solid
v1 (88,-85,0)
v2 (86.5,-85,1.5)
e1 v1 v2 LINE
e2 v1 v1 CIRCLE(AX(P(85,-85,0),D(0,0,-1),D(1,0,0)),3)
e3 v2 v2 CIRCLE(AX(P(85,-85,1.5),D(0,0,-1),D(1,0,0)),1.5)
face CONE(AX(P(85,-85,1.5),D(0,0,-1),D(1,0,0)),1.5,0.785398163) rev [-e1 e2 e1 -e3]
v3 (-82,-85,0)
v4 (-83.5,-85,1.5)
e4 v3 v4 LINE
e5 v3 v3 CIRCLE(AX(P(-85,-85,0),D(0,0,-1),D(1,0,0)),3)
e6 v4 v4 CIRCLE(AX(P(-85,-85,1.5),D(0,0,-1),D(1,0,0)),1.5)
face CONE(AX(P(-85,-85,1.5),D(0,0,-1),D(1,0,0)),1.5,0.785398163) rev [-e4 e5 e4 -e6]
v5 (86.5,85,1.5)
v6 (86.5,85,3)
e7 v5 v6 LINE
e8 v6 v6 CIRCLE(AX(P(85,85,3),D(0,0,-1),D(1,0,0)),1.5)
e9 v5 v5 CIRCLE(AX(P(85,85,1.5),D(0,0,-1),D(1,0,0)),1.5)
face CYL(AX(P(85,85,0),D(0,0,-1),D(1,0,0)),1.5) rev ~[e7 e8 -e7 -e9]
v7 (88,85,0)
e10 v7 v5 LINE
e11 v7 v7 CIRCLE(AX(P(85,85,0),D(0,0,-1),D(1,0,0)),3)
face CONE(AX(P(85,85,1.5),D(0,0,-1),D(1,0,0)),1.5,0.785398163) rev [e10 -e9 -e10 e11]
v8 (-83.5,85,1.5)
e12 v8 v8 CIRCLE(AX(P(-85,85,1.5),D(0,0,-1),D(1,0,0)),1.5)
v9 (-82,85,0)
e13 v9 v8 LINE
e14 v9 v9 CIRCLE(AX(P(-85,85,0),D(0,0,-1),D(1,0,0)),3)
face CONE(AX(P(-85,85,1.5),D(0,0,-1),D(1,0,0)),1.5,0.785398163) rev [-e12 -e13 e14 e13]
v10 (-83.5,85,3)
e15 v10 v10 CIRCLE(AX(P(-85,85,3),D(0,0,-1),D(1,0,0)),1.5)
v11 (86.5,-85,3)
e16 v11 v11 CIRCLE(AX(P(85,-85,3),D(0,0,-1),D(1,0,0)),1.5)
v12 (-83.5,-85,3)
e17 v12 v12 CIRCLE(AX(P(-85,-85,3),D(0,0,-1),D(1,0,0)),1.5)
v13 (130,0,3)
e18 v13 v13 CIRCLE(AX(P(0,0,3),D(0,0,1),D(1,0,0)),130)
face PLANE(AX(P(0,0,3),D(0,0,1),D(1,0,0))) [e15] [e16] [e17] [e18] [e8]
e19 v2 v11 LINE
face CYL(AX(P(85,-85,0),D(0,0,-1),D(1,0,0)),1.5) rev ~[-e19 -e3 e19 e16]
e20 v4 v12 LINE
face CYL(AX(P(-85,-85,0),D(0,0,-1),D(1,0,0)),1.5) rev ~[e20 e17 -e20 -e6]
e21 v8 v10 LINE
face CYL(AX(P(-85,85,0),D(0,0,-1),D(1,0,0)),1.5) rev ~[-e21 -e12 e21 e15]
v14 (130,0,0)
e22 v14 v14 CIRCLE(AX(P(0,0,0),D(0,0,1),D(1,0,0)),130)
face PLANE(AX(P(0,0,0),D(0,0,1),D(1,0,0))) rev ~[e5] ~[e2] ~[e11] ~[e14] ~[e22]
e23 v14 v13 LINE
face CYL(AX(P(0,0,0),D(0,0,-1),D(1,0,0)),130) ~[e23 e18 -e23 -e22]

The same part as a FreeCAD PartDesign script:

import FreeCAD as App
import Part
import Sketcher
Q = App.Units.Quantity


def edges_at(feature, points):
    """Names of the edges that pass closest to the given points."""
    edges = feature.Shape.Edges
    near = lambda p: min(range(len(edges)), key=lambda i: edges[i].distToShape(Part.Vertex(*p))[0])
    return sorted({f"Edge{near(p) + 1}" for p in points})

doc = App.newDocument("Part")
params = doc.addObject("Spreadsheet::Sheet", "Params")
for row, (alias, value) in enumerate([
    ("sketch1_diameter", "260 mm"),
    ("pad1_length", "3 mm"),
    ("sketch2_diameter", "3 mm"),
    ("pocket1_length", "3 mm"),
    ("chamfer_size", "1.5 mm"),
], start=1):
    params.set(f"A{row}", alias)
    params.set(f"B{row}", "=" + value)
    params.setAlias(f"B{row}", alias)

body = doc.addObject("PartDesign::Body", "Body")

# Sketch on XY plane
sketch1 = body.newObject("Sketcher::SketchObject", "Sketch")
sketch1.AttachmentSupport = (doc.getObject("XY_Plane"), [""])
sketch1.MapMode = "FlatFace"
sketch1.addGeometry(Part.Circle(App.Vector(0, 0, 0), App.Vector(0, 0, 1), 130), False)
sketch1.addConstraint([
    Sketcher.Constraint("Coincident", 0, 3, -1, 1),
    Sketcher.Constraint("Diameter", 0, Q("260 mm")),
])
sketch1.setExpression("Constraints[1]", "Params.sketch1_diameter")
pad1 = body.newObject("PartDesign::Pad", "Pad")
pad1.Profile = sketch1
pad1.setExpression("Length", "Params.pad1_length")

# Sketch on XY plane
sketch2 = body.newObject("Sketcher::SketchObject", "Sketch001")
sketch2.AttachmentSupport = (doc.getObject("XY_Plane"), [""])
sketch2.MapMode = "FlatFace"
sketch2.addGeometry([
    Part.Circle(App.Vector(-85, -85, 0), App.Vector(0, 0, 1), 1.5),
    Part.Circle(App.Vector(-85, 85, 0), App.Vector(0, 0, 1), 1.5),
    Part.Circle(App.Vector(85, 85, 0), App.Vector(0, 0, 1), 1.5),
    Part.Circle(App.Vector(85, -85, 0), App.Vector(0, 0, 1), 1.5),
], False)
sketch2.addConstraint([
    Sketcher.Constraint("Equal", 0, 1),
    Sketcher.Constraint("Equal", 1, 2),
    Sketcher.Constraint("Equal", 2, 3),
    Sketcher.Constraint("Symmetric", 0, 3, 2, 3, -1, 1),
    Sketcher.Constraint("Symmetric", 1, 3, 3, 3, -1, 1),
    Sketcher.Constraint("Symmetric", 1, 3, 2, 3, -2),
    Sketcher.Constraint("Diameter", 0, Q("3 mm")),
    Sketcher.Constraint("DistanceX", 0, 3, -1, 1, Q("85 mm")),
    Sketcher.Constraint("DistanceY", 0, 3, -1, 1, Q("85 mm")),
])
sketch2.setExpression("Constraints[6]", "Params.sketch2_diameter")
pocket1 = body.newObject("PartDesign::Pocket", "Pocket")
pocket1.Profile = sketch2
pocket1.setExpression("Length", "Params.pocket1_length")
pocket1.Reversed = True
doc.recompute()

chamfer = body.newObject("PartDesign::Chamfer", "Chamfer")
chamfer.Base = (pocket1, edges_at(pocket1, [
    (-86.398, -85.542, 0),
    (83.602, -85.542, 0),
    (-86.398, 84.458, 0),
    (83.602, 84.458, 0),
]))
chamfer.setExpression("Size", "Params.chamfer_size")

doc.recompute()
